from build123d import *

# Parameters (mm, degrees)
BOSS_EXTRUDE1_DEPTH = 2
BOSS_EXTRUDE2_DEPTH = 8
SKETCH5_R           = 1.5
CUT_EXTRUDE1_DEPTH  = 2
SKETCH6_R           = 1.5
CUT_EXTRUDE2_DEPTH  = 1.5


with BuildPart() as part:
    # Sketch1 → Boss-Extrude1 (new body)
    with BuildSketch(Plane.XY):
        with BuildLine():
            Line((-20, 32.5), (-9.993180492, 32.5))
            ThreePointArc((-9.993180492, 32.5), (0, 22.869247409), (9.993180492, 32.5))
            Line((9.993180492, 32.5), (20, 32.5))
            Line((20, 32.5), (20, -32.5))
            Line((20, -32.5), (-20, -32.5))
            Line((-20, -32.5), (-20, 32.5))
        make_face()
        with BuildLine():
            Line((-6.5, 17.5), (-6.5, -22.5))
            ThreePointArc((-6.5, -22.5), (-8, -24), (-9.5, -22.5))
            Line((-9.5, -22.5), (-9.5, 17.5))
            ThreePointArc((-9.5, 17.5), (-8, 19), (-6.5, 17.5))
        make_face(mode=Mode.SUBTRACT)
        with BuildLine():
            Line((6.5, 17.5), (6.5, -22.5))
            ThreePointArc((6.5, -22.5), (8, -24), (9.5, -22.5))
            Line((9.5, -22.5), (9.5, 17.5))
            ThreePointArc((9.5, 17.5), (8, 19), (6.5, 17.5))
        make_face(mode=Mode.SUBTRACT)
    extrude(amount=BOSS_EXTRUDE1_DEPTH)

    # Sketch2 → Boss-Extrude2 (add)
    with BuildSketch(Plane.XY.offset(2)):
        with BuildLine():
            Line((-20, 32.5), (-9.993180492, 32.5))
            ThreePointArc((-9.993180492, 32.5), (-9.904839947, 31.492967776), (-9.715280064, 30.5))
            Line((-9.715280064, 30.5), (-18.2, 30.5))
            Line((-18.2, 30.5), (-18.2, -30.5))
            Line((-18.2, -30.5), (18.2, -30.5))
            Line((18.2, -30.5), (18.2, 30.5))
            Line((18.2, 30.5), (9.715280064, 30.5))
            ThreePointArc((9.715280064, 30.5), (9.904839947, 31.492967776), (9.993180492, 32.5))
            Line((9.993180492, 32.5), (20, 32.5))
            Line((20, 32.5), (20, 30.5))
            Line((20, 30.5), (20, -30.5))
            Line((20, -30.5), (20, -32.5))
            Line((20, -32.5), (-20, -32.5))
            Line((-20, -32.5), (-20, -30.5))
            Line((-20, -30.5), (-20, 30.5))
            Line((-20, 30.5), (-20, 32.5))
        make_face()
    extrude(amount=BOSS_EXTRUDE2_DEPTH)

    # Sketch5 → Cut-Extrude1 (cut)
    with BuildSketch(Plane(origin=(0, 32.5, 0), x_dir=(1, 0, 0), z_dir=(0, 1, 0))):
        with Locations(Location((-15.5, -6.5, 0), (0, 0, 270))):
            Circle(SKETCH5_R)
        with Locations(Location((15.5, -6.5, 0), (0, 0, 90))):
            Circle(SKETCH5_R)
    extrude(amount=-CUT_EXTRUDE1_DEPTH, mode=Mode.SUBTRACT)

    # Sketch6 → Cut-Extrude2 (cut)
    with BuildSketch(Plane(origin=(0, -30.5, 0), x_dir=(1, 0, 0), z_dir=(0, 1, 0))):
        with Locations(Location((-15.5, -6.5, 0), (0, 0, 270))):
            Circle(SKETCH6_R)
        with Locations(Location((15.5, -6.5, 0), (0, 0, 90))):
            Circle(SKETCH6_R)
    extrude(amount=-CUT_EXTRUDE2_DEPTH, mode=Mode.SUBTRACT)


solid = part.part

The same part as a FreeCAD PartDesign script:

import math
import FreeCAD as App
import Part
import Sketcher
from FreeCAD import Vector
Q = App.Units.Quantity

doc = App.newDocument("Part")
params = doc.addObject("Spreadsheet::Sheet", "Params")
for row, (alias, value) in enumerate([
    ("sketch1_radius", "10 mm"),
    ("sketch1_radius2", "1.5 mm"),
    ("sketch1_width", "40 mm"),
    ("sketch1_height", "65 mm"),
    ("pad1_length", "2 mm"),
    ("sketch2_radius", "10 mm"),
    ("sketch2_width", "40 mm"),
    ("sketch2_height", "65 mm"),
    ("sketch2_height2", "61 mm"),
    ("sketch2_width2", "36.4 mm"),
    ("pad2_length", "8 mm"),
    ("sketch3_diameter", "3 mm"),
    ("pocket1_length", "2 mm"),
    ("sketch4_diameter", "3 mm"),
    ("pocket2_length", "1.5 mm"),
], start=1):
    params.set(f"A{row}", alias)
    params.set(f"B{row}", "=" + value)
    params.setAlias(f"B{row}", alias)

body = doc.addObject("PartDesign::Body", "Body")

sketch1 = body.newObject("Sketcher::SketchObject", "Sketch")
sketch1.AttachmentSupport = (doc.getObject("XY_Plane"), [""])
sketch1.MapMode = "FlatFace"
sketch1.addGeometry(Part.LineSegment(Vector(-10, 32.5, 0), Vector(-20, 32.5, 0)), False)
sketch1.addGeometry(Part.LineSegment(Vector(-20, 32.5, 0), Vector(-20, -32.5, 0)), False)
sketch1.addGeometry(Part.LineSegment(Vector(-20, -32.5, 0), Vector(20, -32.5, 0)), False)
sketch1.addGeometry(Part.LineSegment(Vector(20, -32.5, 0), Vector(20, 32.5, 0)), False)
sketch1.addGeometry(Part.LineSegment(Vector(20, 32.5, 0), Vector(10, 32.5, 0)), False)
sketch1.addGeometry(Part.ArcOfCircle(Part.Circle(Vector(0, 32.9, 0), Vector(0, 0, 1), 10), math.radians(-178), math.radians(-2)), False)
sketch1.addGeometry(Part.ArcOfCircle(Part.Circle(Vector(8, 17.5, 0), Vector(0, 0, 1), 1.5), math.radians(0), math.radians(180)), False)
sketch1.addGeometry(Part.LineSegment(Vector(9.5, 17.5, 0), Vector(9.5, -22.5, 0)), False)
sketch1.addGeometry(Part.ArcOfCircle(Part.Circle(Vector(8, -22.5, 0), Vector(0, 0, 1), 1.5), math.radians(180), math.radians(360)), False)
sketch1.addGeometry(Part.LineSegment(Vector(6.5, -22.5, 0), Vector(6.5, 17.5, 0)), False)
sketch1.addGeometry(Part.LineSegment(Vector(-6.5, 17.5, 0), Vector(-6.5, -22.5, 0)), False)
sketch1.addGeometry(Part.ArcOfCircle(Part.Circle(Vector(-8, -22.5, 0), Vector(0, 0, 1), 1.5), math.radians(180), math.radians(360)), False)
sketch1.addGeometry(Part.LineSegment(Vector(-9.5, -22.5, 0), Vector(-9.5, 17.5, 0)), False)
sketch1.addGeometry(Part.ArcOfCircle(Part.Circle(Vector(-8, 17.5, 0), Vector(0, 0, 1), 1.5), math.radians(0), math.radians(180)), False)
sketch1.addConstraint(Sketcher.Constraint("Coincident", 0, 2, 1, 1))
sketch1.addConstraint(Sketcher.Constraint("Coincident", 1, 2, 2, 1))
sketch1.addConstraint(Sketcher.Constraint("Coincident", 2, 2, 3, 1))
sketch1.addConstraint(Sketcher.Constraint("Coincident", 3, 2, 4, 1))
sketch1.addConstraint(Sketcher.Constraint("Coincident", 4, 2, 5, 2))
sketch1.addConstraint(Sketcher.Constraint("Coincident", 5, 1, 0, 1))
sketch1.addConstraint(Sketcher.Constraint("Tangent", 6, 1, 7, 1))
sketch1.addConstraint(Sketcher.Constraint("Tangent", 7, 2, 8, 2))
sketch1.addConstraint(Sketcher.Constraint("Tangent", 8, 1, 9, 1))
sketch1.addConstraint(Sketcher.Constraint("Tangent", 9, 2, 6, 2))
sketch1.addConstraint(Sketcher.Constraint("Tangent", 10, 2, 11, 2))
sketch1.addConstraint(Sketcher.Constraint("Tangent", 11, 1, 12, 1))
sketch1.addConstraint(Sketcher.Constraint("Tangent", 12, 2, 13, 2))
sketch1.addConstraint(Sketcher.Constraint("Tangent", 13, 1, 10, 1))
sketch1.addConstraint(Sketcher.Constraint("Horizontal", 0))
sketch1.addConstraint(Sketcher.Constraint("Vertical", 1))
sketch1.addConstraint(Sketcher.Constraint("Horizontal", 2))
sketch1.addConstraint(Sketcher.Constraint("Vertical", 3))
sketch1.addConstraint(Sketcher.Constraint("Horizontal", 4))
sketch1.addConstraint(Sketcher.Constraint("Vertical", 7))
sketch1.addConstraint(Sketcher.Constraint("Vertical", 9))
sketch1.addConstraint(Sketcher.Constraint("Vertical", 10))
sketch1.addConstraint(Sketcher.Constraint("Vertical", 12))
sketch1.addConstraint(Sketcher.Constraint("Equal", 8, 11))
sketch1.addConstraint(Sketcher.Constraint("Symmetric", 0, 2, 2, 2, -1, 1))
sketch1.addConstraint(Sketcher.Constraint("Symmetric", 8, 3, 11, 3, -2))
sketch1.addConstraint(Sketcher.Constraint("Symmetric", 4, 2, 5, 1, -2))
sketch1.addConstraint(Sketcher.Constraint("Horizontal", 6, 3, 13, 3))
sketch1.addConstraint(Sketcher.Constraint("Equal", 2, 7))
sketch1.addConstraint(Sketcher.Constraint("Radius", 5, Q("10 mm")))
sketch1.addConstraint(Sketcher.Constraint("Radius", 6, Q("1.5 mm")))
sketch1.addConstraint(Sketcher.Constraint("DistanceX", 2, 1, 2, 2, Q("40 mm")))
sketch1.addConstraint(Sketcher.Constraint("DistanceY", 1, 2, 1, 1, Q("65 mm")))
sketch1.addConstraint(Sketcher.Constraint("DistanceX", -1, 1, 6, 3, Q("8 mm")))
sketch1.addConstraint(Sketcher.Constraint("DistanceY", 13, 3, 0, 2, Q("15 mm")))
sketch1.addConstraint(Sketcher.Constraint("DistanceX", 0, 2, 0, 1, Q("10.00682 mm")))
sketch1.setExpression("Constraints[29]", "Params.sketch1_radius")
sketch1.setExpression("Constraints[30]", "Params.sketch1_radius2")
sketch1.setExpression("Constraints[31]", "Params.sketch1_width")
sketch1.setExpression("Constraints[32]", "Params.sketch1_height")
pad1 = body.newObject("PartDesign::Pad", "Pad")
pad1.Profile = sketch1
pad1.setExpression("Length", "Params.pad1_length")

sketch2 = body.newObject("Sketcher::SketchObject", "Sketch001")
sketch2.AttachmentSupport = (doc.getObject("XY_Plane"), [""])
sketch2.MapMode = "FlatFace"
sketch2.AttachmentOffset = App.Placement(Vector(0, 0, 2), App.Rotation())
sketch2.addGeometry(Part.LineSegment(Vector(-10, 32.5, 0), Vector(-20, 32.5, 0)), False)
sketch2.addGeometry(Part.LineSegment(Vector(-20, 32.5, 0), Vector(-20, -32.5, 0)), False)
sketch2.addGeometry(Part.LineSegment(Vector(-20, -32.5, 0), Vector(20, -32.5, 0)), False)
sketch2.addGeometry(Part.LineSegment(Vector(20, -32.5, 0), Vector(20, 32.5, 0)), False)
sketch2.addGeometry(Part.LineSegment(Vector(20, 32.5, 0), Vector(10, 32.5, 0)), False)
sketch2.addGeometry(Part.ArcOfCircle(Part.Circle(Vector(0, 32.9, 0), Vector(0, 0, 1), 10), math.radians(-13.71), math.radians(-2.12)), False)
sketch2.addGeometry(Part.LineSegment(Vector(9.7, 30.5, 0), Vector(18.2, 30.5, 0)), False)
sketch2.addGeometry(Part.LineSegment(Vector(18.2, 30.5, 0), Vector(18.2, -30.5, 0)), False)
sketch2.addGeometry(Part.LineSegment(Vector(18.2, -30.5, 0), Vector(-18.2, -30.5, 0)), False)
sketch2.addGeometry(Part.LineSegment(Vector(-18.2, -30.5, 0), Vector(-18.2, 30.5, 0)), False)
sketch2.addGeometry(Part.LineSegment(Vector(-18.2, 30.5, 0), Vector(-9.7, 30.5, 0)), False)
sketch2.addGeometry(Part.ArcOfCircle(Part.Circle(Vector(0, 32.9, 0), Vector(0, 0, 1), 10), math.radians(-177.88), math.radians(-166.29)), False)
sketch2.addConstraint(Sketcher.Constraint("Coincident", 0, 2, 1, 1))
sketch2.addConstraint(Sketcher.Constraint("Coincident", 1, 2, 2, 1))
sketch2.addConstraint(Sketcher.Constraint("Coincident", 2, 2, 3, 1))
sketch2.addConstraint(Sketcher.Constraint("Coincident", 3, 2, 4, 1))
sketch2.addConstraint(Sketcher.Constraint("Coincident", 4, 2, 5, 2))
sketch2.addConstraint(Sketcher.Constraint("Coincident", 5, 1, 6, 1))
sketch2.addConstraint(Sketcher.Constraint("Coincident", 6, 2, 7, 1))
sketch2.addConstraint(Sketcher.Constraint("Coincident", 7, 2, 8, 1))
sketch2.addConstraint(Sketcher.Constraint("Coincident", 8, 2, 9, 1))
sketch2.addConstraint(Sketcher.Constraint("Coincident", 9, 2, 10, 1))
sketch2.addConstraint(Sketcher.Constraint("Coincident", 10, 2, 11, 2))
sketch2.addConstraint(Sketcher.Constraint("Coincident", 11, 1, 0, 1))
sketch2.addConstraint(Sketcher.Constraint("Horizontal", 0))
sketch2.addConstraint(Sketcher.Constraint("Vertical", 1))
sketch2.addConstraint(Sketcher.Constraint("Horizontal", 2))
sketch2.addConstraint(Sketcher.Constraint("Vertical", 3))
sketch2.addConstraint(Sketcher.Constraint("Horizontal", 4))
sketch2.addConstraint(Sketcher.Constraint("Horizontal", 6))
sketch2.addConstraint(Sketcher.Constraint("Vertical", 7))
sketch2.addConstraint(Sketcher.Constraint("Horizontal", 8))
sketch2.addConstraint(Sketcher.Constraint("Vertical", 9))
sketch2.addConstraint(Sketcher.Constraint("Horizontal", 10))
sketch2.addConstraint(Sketcher.Constraint("Coincident", 11, 3, 5, 3))
sketch2.addConstraint(Sketcher.Constraint("Equal", 5, 11))
sketch2.addConstraint(Sketcher.Constraint("Symmetric", 0, 2, 2, 2, -1, 1))
sketch2.addConstraint(Sketcher.Constraint("Symmetric", 6, 2, 8, 2, -1, 1))
sketch2.addConstraint(Sketcher.Constraint("Symmetric", 5, 1, 10, 2, -2))
sketch2.addConstraint(Sketcher.Constraint("Horizontal", 0, 2, 3, 2))
sketch2.addConstraint(Sketcher.Constraint("Radius", 5, Q("10 mm")))
sketch2.addConstraint(Sketcher.Constraint("DistanceX", 2, 1, 2, 2, Q("40 mm")))
sketch2.addConstraint(Sketcher.Constraint("DistanceY", 1, 2, 1, 1, Q("65 mm")))
sketch2.addConstraint(Sketcher.Constraint("DistanceY", 7, 2, 7, 1, Q("61 mm")))
sketch2.addConstraint(Sketcher.Constraint("DistanceX", 8, 2, 8, 1, Q("36.4 mm")))
sketch2.addConstraint(Sketcher.Constraint("DistanceX", 0, 2, 0, 1, Q("10.00682 mm")))
sketch2.setExpression("Constraints[28]", "Params.sketch2_radius")
sketch2.setExpression("Constraints[29]", "Params.sketch2_width")
sketch2.setExpression("Constraints[30]", "Params.sketch2_height")
sketch2.setExpression("Constraints[31]", "Params.sketch2_height2")
sketch2.setExpression("Constraints[32]", "Params.sketch2_width2")
pad2 = body.newObject("PartDesign::Pad", "Pad001")
pad2.Profile = sketch2
pad2.setExpression("Length", "Params.pad2_length")

sketch3 = body.newObject("Sketcher::SketchObject", "Sketch002")
sketch3.AttachmentSupport = (doc.getObject("XZ_Plane"), [""])
sketch3.MapMode = "FlatFace"
sketch3.AttachmentOffset = App.Placement(Vector(0, 0, -32.5), App.Rotation())
sketch3.addGeometry(Part.Circle(Vector(-15.5, 6.5, 0), Vector(0, 0, 1), 1.5), False)
sketch3.addGeometry(Part.Circle(Vector(15.5, 6.5, 0), Vector(0, 0, 1), 1.5), False)
sketch3.addConstraint(Sketcher.Constraint("Equal", 0, 1))
sketch3.addConstraint(Sketcher.Constraint("Symmetric", 0, 3, 1, 3, -2))
sketch3.addConstraint(Sketcher.Constraint("Diameter", 0, Q("3 mm")))
sketch3.addConstraint(Sketcher.Constraint("DistanceX", 0, 3, 1, 3, Q("31 mm")))
sketch3.addConstraint(Sketcher.Constraint("DistanceY", -1, 1, 0, 3, Q("6.5 mm")))
sketch3.setExpression("Constraints[2]", "Params.sketch3_diameter")
pocket1 = body.newObject("PartDesign::Pocket", "Pocket")
pocket1.Profile = sketch3
pocket1.setExpression("Length", "Params.pocket1_length")
pocket1.Reversed = True

sketch4 = body.newObject("Sketcher::SketchObject", "Sketch003")
sketch4.AttachmentSupport = (doc.getObject("XZ_Plane"), [""])
sketch4.MapMode = "FlatFace"
sketch4.AttachmentOffset = App.Placement(Vector(0, 0, 30.5), App.Rotation())
sketch4.addGeometry(Part.Circle(Vector(-15.5, 6.5, 0), Vector(0, 0, 1), 1.5), False)
sketch4.addGeometry(Part.Circle(Vector(15.5, 6.5, 0), Vector(0, 0, 1), 1.5), False)
sketch4.addConstraint(Sketcher.Constraint("Equal", 0, 1))
sketch4.addConstraint(Sketcher.Constraint("Symmetric", 0, 3, 1, 3, -2))
sketch4.addConstraint(Sketcher.Constraint("Diameter", 0, Q("3 mm")))
sketch4.addConstraint(Sketcher.Constraint("DistanceX", 0, 3, 1, 3, Q("31 mm")))
sketch4.addConstraint(Sketcher.Constraint("DistanceY", -1, 1, 0, 3, Q("6.5 mm")))
sketch4.setExpression("Constraints[2]", "Params.sketch4_diameter")
pocket2 = body.newObject("PartDesign::Pocket", "Pocket001")
pocket2.Profile = sketch4
pocket2.setExpression("Length", "Params.pocket2_length")
pocket2.Reversed = True

doc.recompute()
